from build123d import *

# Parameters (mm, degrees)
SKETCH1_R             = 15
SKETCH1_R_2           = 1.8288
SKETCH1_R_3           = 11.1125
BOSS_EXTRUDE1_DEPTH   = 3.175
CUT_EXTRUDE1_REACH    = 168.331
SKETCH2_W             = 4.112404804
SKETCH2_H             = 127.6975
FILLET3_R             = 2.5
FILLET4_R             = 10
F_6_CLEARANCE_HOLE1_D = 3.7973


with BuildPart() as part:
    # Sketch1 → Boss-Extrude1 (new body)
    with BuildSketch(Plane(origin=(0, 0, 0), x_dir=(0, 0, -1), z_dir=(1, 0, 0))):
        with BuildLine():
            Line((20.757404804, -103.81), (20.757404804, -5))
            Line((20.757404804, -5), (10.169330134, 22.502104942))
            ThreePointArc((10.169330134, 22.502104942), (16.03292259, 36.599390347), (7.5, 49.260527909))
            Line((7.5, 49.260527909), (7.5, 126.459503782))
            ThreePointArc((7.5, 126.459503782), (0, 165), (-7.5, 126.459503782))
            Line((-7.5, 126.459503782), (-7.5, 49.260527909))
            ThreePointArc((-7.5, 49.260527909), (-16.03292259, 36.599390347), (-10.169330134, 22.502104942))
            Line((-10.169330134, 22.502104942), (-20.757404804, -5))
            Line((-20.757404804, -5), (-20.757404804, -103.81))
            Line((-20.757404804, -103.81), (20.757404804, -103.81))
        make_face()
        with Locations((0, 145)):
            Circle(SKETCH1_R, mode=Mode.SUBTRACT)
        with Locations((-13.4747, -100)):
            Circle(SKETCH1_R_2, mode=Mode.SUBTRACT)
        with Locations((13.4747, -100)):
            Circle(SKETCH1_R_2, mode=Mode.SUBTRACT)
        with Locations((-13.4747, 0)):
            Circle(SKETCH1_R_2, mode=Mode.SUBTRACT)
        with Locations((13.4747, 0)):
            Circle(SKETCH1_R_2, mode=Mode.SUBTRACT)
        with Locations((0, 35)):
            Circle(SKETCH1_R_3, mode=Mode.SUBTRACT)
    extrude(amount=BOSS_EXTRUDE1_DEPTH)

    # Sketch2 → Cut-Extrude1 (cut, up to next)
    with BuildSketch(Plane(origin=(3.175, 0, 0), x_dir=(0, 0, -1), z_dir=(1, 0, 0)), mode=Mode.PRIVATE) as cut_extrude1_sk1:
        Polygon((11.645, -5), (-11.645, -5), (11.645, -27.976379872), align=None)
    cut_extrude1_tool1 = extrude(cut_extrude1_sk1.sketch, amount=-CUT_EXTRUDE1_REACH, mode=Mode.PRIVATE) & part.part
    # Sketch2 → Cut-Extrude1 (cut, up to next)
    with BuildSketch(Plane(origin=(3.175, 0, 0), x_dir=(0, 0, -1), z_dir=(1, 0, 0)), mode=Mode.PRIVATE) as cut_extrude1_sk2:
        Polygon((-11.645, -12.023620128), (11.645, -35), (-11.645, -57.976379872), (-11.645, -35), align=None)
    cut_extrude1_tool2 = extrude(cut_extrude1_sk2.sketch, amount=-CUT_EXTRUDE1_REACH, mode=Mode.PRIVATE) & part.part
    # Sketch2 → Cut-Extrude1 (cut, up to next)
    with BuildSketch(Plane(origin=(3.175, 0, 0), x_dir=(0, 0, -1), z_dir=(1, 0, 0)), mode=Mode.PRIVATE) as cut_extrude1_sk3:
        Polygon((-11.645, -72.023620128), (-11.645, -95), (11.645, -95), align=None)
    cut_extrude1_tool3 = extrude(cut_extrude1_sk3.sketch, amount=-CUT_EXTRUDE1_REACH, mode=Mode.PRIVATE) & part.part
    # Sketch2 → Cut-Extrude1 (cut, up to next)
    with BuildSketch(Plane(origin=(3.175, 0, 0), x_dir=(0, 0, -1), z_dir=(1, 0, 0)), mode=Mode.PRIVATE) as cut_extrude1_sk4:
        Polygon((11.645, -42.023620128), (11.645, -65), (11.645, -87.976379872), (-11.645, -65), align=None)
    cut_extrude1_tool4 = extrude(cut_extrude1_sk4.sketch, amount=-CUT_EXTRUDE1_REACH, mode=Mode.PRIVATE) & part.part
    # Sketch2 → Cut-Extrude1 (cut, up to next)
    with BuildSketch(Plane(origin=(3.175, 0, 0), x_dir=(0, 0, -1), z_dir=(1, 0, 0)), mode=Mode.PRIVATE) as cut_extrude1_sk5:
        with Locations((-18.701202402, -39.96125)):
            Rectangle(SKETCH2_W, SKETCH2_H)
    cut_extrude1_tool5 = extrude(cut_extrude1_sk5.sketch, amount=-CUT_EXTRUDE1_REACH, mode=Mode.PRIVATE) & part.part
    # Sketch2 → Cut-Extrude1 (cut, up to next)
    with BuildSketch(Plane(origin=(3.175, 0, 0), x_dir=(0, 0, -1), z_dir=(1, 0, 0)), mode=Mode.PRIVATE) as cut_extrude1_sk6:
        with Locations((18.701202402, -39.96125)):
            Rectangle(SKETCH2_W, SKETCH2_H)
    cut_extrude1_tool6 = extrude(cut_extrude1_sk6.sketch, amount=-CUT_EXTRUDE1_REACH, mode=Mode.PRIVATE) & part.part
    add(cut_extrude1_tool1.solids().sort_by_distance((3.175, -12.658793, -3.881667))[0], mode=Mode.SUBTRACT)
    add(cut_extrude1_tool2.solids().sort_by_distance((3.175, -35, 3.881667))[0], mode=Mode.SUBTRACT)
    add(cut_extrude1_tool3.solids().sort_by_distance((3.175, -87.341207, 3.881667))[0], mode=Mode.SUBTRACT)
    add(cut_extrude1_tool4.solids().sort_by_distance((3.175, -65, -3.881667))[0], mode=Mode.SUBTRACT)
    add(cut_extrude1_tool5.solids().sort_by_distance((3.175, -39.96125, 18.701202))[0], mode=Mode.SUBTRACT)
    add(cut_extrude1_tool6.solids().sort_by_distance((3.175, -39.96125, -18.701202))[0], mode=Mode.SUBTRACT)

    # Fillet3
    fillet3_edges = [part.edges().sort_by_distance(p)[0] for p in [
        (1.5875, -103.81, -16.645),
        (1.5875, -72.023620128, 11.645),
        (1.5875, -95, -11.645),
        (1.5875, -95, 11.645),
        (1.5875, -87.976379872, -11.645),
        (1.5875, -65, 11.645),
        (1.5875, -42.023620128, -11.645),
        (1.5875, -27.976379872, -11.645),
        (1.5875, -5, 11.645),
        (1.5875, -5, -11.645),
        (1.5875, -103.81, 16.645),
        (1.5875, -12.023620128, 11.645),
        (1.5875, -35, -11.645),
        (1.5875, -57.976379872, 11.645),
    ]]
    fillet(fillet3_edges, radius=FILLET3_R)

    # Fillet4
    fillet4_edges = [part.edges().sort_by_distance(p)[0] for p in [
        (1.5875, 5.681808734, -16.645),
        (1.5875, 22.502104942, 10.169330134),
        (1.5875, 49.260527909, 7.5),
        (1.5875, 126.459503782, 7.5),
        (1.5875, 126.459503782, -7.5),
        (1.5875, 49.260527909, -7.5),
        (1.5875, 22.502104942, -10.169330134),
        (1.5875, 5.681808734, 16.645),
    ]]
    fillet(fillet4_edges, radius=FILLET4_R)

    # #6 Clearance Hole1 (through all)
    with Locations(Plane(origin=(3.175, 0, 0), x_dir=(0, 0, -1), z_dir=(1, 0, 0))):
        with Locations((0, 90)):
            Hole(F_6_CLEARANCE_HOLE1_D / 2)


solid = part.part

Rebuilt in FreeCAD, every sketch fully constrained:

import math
import FreeCAD as App
import Part
import Sketcher

V = App.Vector
Q = App.Units.Quantity


def edges_at(feature, points):
    """Names of the edges that pass closest to the given points."""
    edges = feature.Shape.Edges
    near = lambda p: min(range(len(edges)), key=lambda i: edges[i].distToShape(Part.Vertex(*p))[0])
    return sorted({f"Edge{near(p) + 1}" for p in points})

doc = App.newDocument("Part")
body = doc.addObject("PartDesign::Body", "Body")

# Sketch on YZ plane
sketch1 = body.newObject("Sketcher::SketchObject", "Sketch")
sketch1.AttachmentSupport = (doc.getObject("YZ_Plane"), [""])
sketch1.MapMode = "FlatFace"
sketch1.addGeometry([
    Part.LineSegment(V(-103.8, -20.8, 0), V(-5, -20.8, 0)),  # 0
    Part.LineSegment(V(-5, -20.8, 0), V(22.5, -10.2, 0)),  # 1
    Part.ArcOfCircle(Part.Circle(V(35, 0, 0), V(0, 0, 1), 16.1), math.radians(-141), math.radians(-28)),  # 2
    Part.LineSegment(V(49.3, -7.5, 0), V(126.5, -7.5, 0)),  # 3
    Part.ArcOfCircle(Part.Circle(V(145, 0, 0), V(0, 0, 1), 20), math.radians(-158), math.radians(158)),  # 4
    Part.LineSegment(V(126.5, 7.5, 0), V(49.3, 7.5, 0)),  # 5
    Part.ArcOfCircle(Part.Circle(V(35, 0, 0), V(0, 0, 1), 16.1), math.radians(28), math.radians(141)),  # 6
    Part.LineSegment(V(22.5, 10.2, 0), V(-5, 20.8, 0)),  # 7
    Part.LineSegment(V(-5, 20.8, 0), V(-103.8, 20.8, 0)),  # 8
    Part.LineSegment(V(-103.8, 20.8, 0), V(-103.8, -20.8, 0)),  # 9
    Part.Circle(V(-100, 13.5, 0), V(0, 0, 1), 1.8),  # 10
    Part.Circle(V(0, 13.5, 0), V(0, 0, 1), 1.8),  # 11
    Part.Circle(V(-100, -13.5, 0), V(0, 0, 1), 1.8),  # 12
    Part.Circle(V(0, -13.5, 0), V(0, 0, 1), 1.8),  # 13
    Part.Circle(V(35, 0, 0), V(0, 0, 1), 11.1),  # 14
    Part.Circle(V(145, 0, 0), V(0, 0, 1), 15),  # 15
], False)
sketch1.addConstraint([
    Sketcher.Constraint("Coincident", 0, 2, 1, 1),
    Sketcher.Constraint("Coincident", 1, 2, 2, 1),
    Sketcher.Constraint("Coincident", 2, 2, 3, 1),
    Sketcher.Constraint("Coincident", 3, 2, 4, 1),
    Sketcher.Constraint("Coincident", 4, 2, 5, 1),
    Sketcher.Constraint("Coincident", 5, 2, 6, 1),
    Sketcher.Constraint("Coincident", 6, 2, 7, 1),
    Sketcher.Constraint("Coincident", 7, 2, 8, 1),
    Sketcher.Constraint("Coincident", 8, 2, 9, 1),
    Sketcher.Constraint("Coincident", 9, 2, 0, 1),
    Sketcher.Constraint("Horizontal", 0),
    Sketcher.Constraint("Horizontal", 3),
    Sketcher.Constraint("Horizontal", 5),
    Sketcher.Constraint("Horizontal", 8),
    Sketcher.Constraint("Vertical", 9),
    Sketcher.Constraint("Coincident", 6, 3, 2, 3),
    Sketcher.Constraint("Coincident", 14, 3, 2, 3),
    Sketcher.Constraint("Coincident", 15, 3, 4, 3),
    Sketcher.Constraint("Equal", 2, 6),
    Sketcher.Constraint("Equal", 10, 11),
    Sketcher.Constraint("Equal", 11, 12),
    Sketcher.Constraint("Equal", 12, 13),
    Sketcher.Constraint("Symmetric", 11, 3, 13, 3, -1, 1),
    Sketcher.Constraint("Symmetric", 10, 3, 12, 3, -1),
    Sketcher.Constraint("Symmetric", 3, 2, 4, 2, -1),
    Sketcher.Constraint("Symmetric", 1, 2, 6, 2, -1),
    Sketcher.Constraint("Symmetric", 0, 2, 7, 2, -1),
    Sketcher.Constraint("PointOnObject", 11, 3, -2),
    Sketcher.Constraint("Horizontal", 10, 3, 11, 3),
    Sketcher.Constraint("Diameter", 15, Q("30 mm")),
    Sketcher.Constraint("Radius", 4, Q("20 mm")),
    Sketcher.Constraint("Diameter", 14, Q("22.225 mm")),
    Sketcher.Constraint("DistanceX", -1, 1, 2, 3, Q("35 mm")),
    Sketcher.Constraint("DistanceX", -1, 1, 4, 3, Q("145 mm")),
    Sketcher.Constraint("DistanceX", 10, 3, -1, 1, Q("100 mm")),
    Sketcher.Constraint("DistanceX", 0, 2, -1, 1, Q("5 mm")),
    Sketcher.Constraint("DistanceY", 3, 2, 4, 2, Q("15 mm")),
    Sketcher.Constraint("Diameter", 10, Q("3.6576 mm")),
    Sketcher.Constraint("DistanceX", 0, 1, 0, 2, Q("98.81 mm")),
    Sketcher.Constraint("Radius", 2, Q("16.1125 mm")),
    Sketcher.Constraint("DistanceY", 9, 2, 9, 1, Q("41.51481 mm")),
    Sketcher.Constraint("DistanceY", -1, 1, 10, 3, Q("13.4747 mm")),
    Sketcher.Constraint("DistanceY", 1, 2, -1, 1, Q("10.16933 mm")),
])
pad1 = body.newObject("PartDesign::Pad", "Pad")
pad1.Profile = sketch1
pad1.Length = 3.175

# Sketch on YZ plane
sketch2 = body.newObject("Sketcher::SketchObject", "Sketch001")
sketch2.AttachmentSupport = (doc.getObject("YZ_Plane"), [""])
sketch2.MapMode = "FlatFace"
sketch2.AttachmentOffset = App.Placement(V(0, 0, 3.175), App.Rotation())
sketch2.addGeometry([
    Part.LineSegment(V(-5, -12, 0), V(-5, 12, 0)),
    Part.LineSegment(V(-5, 12, 0), V(-28, -12, 0)),
    Part.LineSegment(V(-28, -12, 0), V(-5, -12, 0)),
], False)
sketch2.addConstraint([
    Sketcher.Constraint("Coincident", 0, 2, 1, 1),
    Sketcher.Constraint("Coincident", 1, 2, 2, 1),
    Sketcher.Constraint("Coincident", 2, 2, 0, 1),
    Sketcher.Constraint("Vertical", 0),
    Sketcher.Constraint("Horizontal", 2),
    Sketcher.Constraint("DistanceX", 0, 2, -1, 1, Q("5 mm")),
    Sketcher.Constraint("DistanceY", 0, 1, 0, 2, Q("23.29 mm")),
    Sketcher.Constraint("DistanceY", -1, 1, 0, 2, Q("11.645 mm")),
    Sketcher.Constraint("DistanceX", 2, 1, 2, 2, Q("22.97638 mm")),
])
pocket1 = body.newObject("PartDesign::Pocket", "Pocket")
pocket1.Profile = sketch2
pocket1.Type = "UpToFirst"

# Sketch on YZ plane
sketch3 = body.newObject("Sketcher::SketchObject", "Sketch002")
sketch3.AttachmentSupport = (doc.getObject("YZ_Plane"), [""])
sketch3.MapMode = "FlatFace"
sketch3.AttachmentOffset = App.Placement(V(0, 0, 3.175), App.Rotation())
sketch3.addGeometry([
    Part.LineSegment(V(-35, -12, 0), V(-12, 12, 0)),
    Part.LineSegment(V(-12, 12, 0), V(-58, 12, 0)),
    Part.LineSegment(V(-58, 12, 0), V(-35, -12, 0)),
], False)
sketch3.addConstraint([
    Sketcher.Constraint("Coincident", 0, 2, 1, 1),
    Sketcher.Constraint("Coincident", 1, 2, 2, 1),
    Sketcher.Constraint("Coincident", 2, 2, 0, 1),
    Sketcher.Constraint("Horizontal", 1),
    Sketcher.Constraint("Equal", 0, 2),
    Sketcher.Constraint("DistanceX", 2, 2, -1, 1, Q("35 mm")),
    Sketcher.Constraint("DistanceY", 2, 2, 0, 2, Q("23.29 mm")),
    Sketcher.Constraint("DistanceY", -1, 1, 0, 2, Q("11.645 mm")),
    Sketcher.Constraint("DistanceX", 1, 2, 1, 1, Q("45.95276 mm")),
])
pocket2 = body.newObject("PartDesign::Pocket", "Pocket001")
pocket2.Profile = sketch3
pocket2.Type = "UpToFirst"

# Sketch on YZ plane
sketch4 = body.newObject("Sketcher::SketchObject", "Sketch003")
sketch4.AttachmentSupport = (doc.getObject("YZ_Plane"), [""])
sketch4.MapMode = "FlatFace"
sketch4.AttachmentOffset = App.Placement(V(0, 0, 3.175), App.Rotation())
sketch4.addGeometry([
    Part.LineSegment(V(-72, 12, 0), V(-95, 12, 0)),
    Part.LineSegment(V(-95, 12, 0), V(-95, -12, 0)),
    Part.LineSegment(V(-95, -12, 0), V(-72, 12, 0)),
], False)
sketch4.addConstraint([
    Sketcher.Constraint("Coincident", 0, 2, 1, 1),
    Sketcher.Constraint("Coincident", 1, 2, 2, 1),
    Sketcher.Constraint("Coincident", 2, 2, 0, 1),
    Sketcher.Constraint("Horizontal", 0),
    Sketcher.Constraint("Vertical", 1),
    Sketcher.Constraint("DistanceX", 0, 2, -1, 1, Q("95 mm")),
    Sketcher.Constraint("DistanceY", 1, 2, 1, 1, Q("23.29 mm")),
    Sketcher.Constraint("DistanceY", -1, 1, 0, 2, Q("11.645 mm")),
    Sketcher.Constraint("DistanceX", 0, 2, 0, 1, Q("22.97638 mm")),
])
pocket3 = body.newObject("PartDesign::Pocket", "Pocket002")
pocket3.Profile = sketch4
pocket3.Type = "UpToFirst"

# Sketch on YZ plane
sketch5 = body.newObject("Sketcher::SketchObject", "Sketch004")
sketch5.AttachmentSupport = (doc.getObject("YZ_Plane"), [""])
sketch5.MapMode = "FlatFace"
sketch5.AttachmentOffset = App.Placement(V(0, 0, 3.175), App.Rotation())
sketch5.addGeometry([
    Part.LineSegment(V(-88, -12, 0), V(-42, -12, 0)),
    Part.LineSegment(V(-42, -12, 0), V(-65, 12, 0)),
    Part.LineSegment(V(-65, 12, 0), V(-88, -12, 0)),
], False)
sketch5.addConstraint([
    Sketcher.Constraint("Coincident", 0, 2, 1, 1),
    Sketcher.Constraint("Coincident", 1, 2, 2, 1),
    Sketcher.Constraint("Coincident", 2, 2, 0, 1),
    Sketcher.Constraint("Horizontal", 0),
    Sketcher.Constraint("Equal", 1, 2),
    Sketcher.Constraint("DistanceX", 1, 2, -1, 1, Q("65 mm")),
    Sketcher.Constraint("DistanceY", 0, 2, 1, 2, Q("23.29 mm")),
    Sketcher.Constraint("DistanceY", 0, 2, -1, 1, Q("11.645 mm")),
    Sketcher.Constraint("DistanceX", 0, 1, 0, 2, Q("45.95276 mm")),
])
pocket4 = body.newObject("PartDesign::Pocket", "Pocket003")
pocket4.Profile = sketch5
pocket4.Type = "UpToFirst"

# Sketch on YZ plane
sketch6 = body.newObject("Sketcher::SketchObject", "Sketch005")
sketch6.AttachmentSupport = (doc.getObject("YZ_Plane"), [""])
sketch6.MapMode = "FlatFace"
sketch6.AttachmentOffset = App.Placement(V(0, 0, 3.175), App.Rotation())
sketch6.addGeometry([
    Part.LineSegment(V(23.9, 20.8, 0), V(-103.8, 20.8, 0)),
    Part.LineSegment(V(-103.8, 20.8, 0), V(-103.8, 16.6, 0)),
    Part.LineSegment(V(-103.8, 16.6, 0), V(23.9, 16.6, 0)),
    Part.LineSegment(V(23.9, 16.6, 0), V(23.9, 20.8, 0)),
], False)
sketch6.addConstraint([
    Sketcher.Constraint("Coincident", 0, 2, 1, 1),
    Sketcher.Constraint("Coincident", 1, 2, 2, 1),
    Sketcher.Constraint("Coincident", 2, 2, 3, 1),
    Sketcher.Constraint("Coincident", 3, 2, 0, 1),
    Sketcher.Constraint("Horizontal", 0),
    Sketcher.Constraint("Vertical", 1),
    Sketcher.Constraint("Horizontal", 2),
    Sketcher.Constraint("Vertical", 3),
    Sketcher.Constraint("DistanceX", 0, 2, -1, 1, Q("103.81 mm")),
    Sketcher.Constraint("DistanceX", 0, 2, 0, 1, Q("127.6975 mm")),
    Sketcher.Constraint("DistanceY", -1, 1, 1, 2, Q("16.645 mm")),
    Sketcher.Constraint("DistanceY", 1, 2, 1, 1, Q("4.112405 mm")),
])
pocket5 = body.newObject("PartDesign::Pocket", "Pocket004")
pocket5.Profile = sketch6
pocket5.Type = "UpToFirst"

# Sketch on YZ plane
sketch7 = body.newObject("Sketcher::SketchObject", "Sketch006")
sketch7.AttachmentSupport = (doc.getObject("YZ_Plane"), [""])
sketch7.MapMode = "FlatFace"
sketch7.AttachmentOffset = App.Placement(V(0, 0, 3.175), App.Rotation())
sketch7.addGeometry([
    Part.LineSegment(V(23.9, -16.6, 0), V(-103.8, -16.6, 0)),
    Part.LineSegment(V(-103.8, -16.6, 0), V(-103.8, -20.8, 0)),
    Part.LineSegment(V(-103.8, -20.8, 0), V(23.9, -20.8, 0)),
    Part.LineSegment(V(23.9, -20.8, 0), V(23.9, -16.6, 0)),
], False)
sketch7.addConstraint([
    Sketcher.Constraint("Coincident", 0, 2, 1, 1),
    Sketcher.Constraint("Coincident", 1, 2, 2, 1),
    Sketcher.Constraint("Coincident", 2, 2, 3, 1),
    Sketcher.Constraint("Coincident", 3, 2, 0, 1),
    Sketcher.Constraint("Horizontal", 0),
    Sketcher.Constraint("Vertical", 1),
    Sketcher.Constraint("Horizontal", 2),
    Sketcher.Constraint("Vertical", 3),
    Sketcher.Constraint("DistanceX", 0, 2, -1, 1, Q("103.81 mm")),
    Sketcher.Constraint("DistanceX", 0, 2, 0, 1, Q("127.6975 mm")),
    Sketcher.Constraint("DistanceY", 0, 2, -1, 1, Q("16.645 mm")),
    Sketcher.Constraint("DistanceY", 1, 2, 1, 1, Q("4.112405 mm")),
])
pocket6 = body.newObject("PartDesign::Pocket", "Pocket005")
pocket6.Profile = sketch7
pocket6.Type = "UpToFirst"
doc.recompute()

fillet = body.newObject("PartDesign::Fillet", "Fillet")
fillet.Base = (pocket6, edges_at(pocket6, [
    (1.587, -103.81, -16.645),
    (1.587, -72.024, 11.645),
    (1.587, -95, -11.645),
    (1.587, -95, 11.645),
    (1.587, -87.976, -11.645),
    (1.587, -65, 11.645),
    (1.587, -42.024, -11.645),
    (1.587, -27.976, -11.645),
    (1.587, -5, 11.645),
    (1.587, -5, -11.645),
    (1.587, -103.81, 16.645),
    (1.587, -12.024, 11.645),
    (1.587, -35, -11.645),
    (1.587, -57.976, 11.645),
]))
fillet.Radius = 2.5
doc.recompute()

fillet2 = body.newObject("PartDesign::Fillet", "Fillet001")
fillet2.Base = (fillet, edges_at(fillet, [
    (1.587, 5.682, -16.645),
    (1.587, 22.502, 10.169),
    (1.587, 49.261, 7.5),
    (1.587, 126.46, 7.5),
    (1.587, 126.46, -7.5),
    (1.587, 49.261, -7.5),
    (1.587, 22.502, -10.169),
    (1.587, 5.682, 16.645),
]))
fillet2.Radius = 10

# Sketch on YZ plane
sketch8 = body.newObject("Sketcher::SketchObject", "Sketch007")
sketch8.AttachmentSupport = (doc.getObject("YZ_Plane"), [""])
sketch8.MapMode = "FlatFace"
sketch8.AttachmentOffset = App.Placement(V(0, 0, 3.175), App.Rotation())
sketch8.addGeometry(Part.Circle(V(90, 0, 0), V(0, 0, 1), 1.9), False)
sketch8.addConstraint([
    Sketcher.Constraint("PointOnObject", 0, 3, -1),
    Sketcher.Constraint("DistanceX", -1, 1, 0, 3, Q("90 mm")),
    Sketcher.Constraint("Diameter", 0, Q("3.7973 mm")),
])
doc.recompute()
hole = body.newObject("PartDesign::Hole", "Hole")
hole.Profile = sketch8
hole.ThreadType = "None"
hole.Diameter = 3.7973
hole.DepthType = "ThroughAll"

doc.recompute()
